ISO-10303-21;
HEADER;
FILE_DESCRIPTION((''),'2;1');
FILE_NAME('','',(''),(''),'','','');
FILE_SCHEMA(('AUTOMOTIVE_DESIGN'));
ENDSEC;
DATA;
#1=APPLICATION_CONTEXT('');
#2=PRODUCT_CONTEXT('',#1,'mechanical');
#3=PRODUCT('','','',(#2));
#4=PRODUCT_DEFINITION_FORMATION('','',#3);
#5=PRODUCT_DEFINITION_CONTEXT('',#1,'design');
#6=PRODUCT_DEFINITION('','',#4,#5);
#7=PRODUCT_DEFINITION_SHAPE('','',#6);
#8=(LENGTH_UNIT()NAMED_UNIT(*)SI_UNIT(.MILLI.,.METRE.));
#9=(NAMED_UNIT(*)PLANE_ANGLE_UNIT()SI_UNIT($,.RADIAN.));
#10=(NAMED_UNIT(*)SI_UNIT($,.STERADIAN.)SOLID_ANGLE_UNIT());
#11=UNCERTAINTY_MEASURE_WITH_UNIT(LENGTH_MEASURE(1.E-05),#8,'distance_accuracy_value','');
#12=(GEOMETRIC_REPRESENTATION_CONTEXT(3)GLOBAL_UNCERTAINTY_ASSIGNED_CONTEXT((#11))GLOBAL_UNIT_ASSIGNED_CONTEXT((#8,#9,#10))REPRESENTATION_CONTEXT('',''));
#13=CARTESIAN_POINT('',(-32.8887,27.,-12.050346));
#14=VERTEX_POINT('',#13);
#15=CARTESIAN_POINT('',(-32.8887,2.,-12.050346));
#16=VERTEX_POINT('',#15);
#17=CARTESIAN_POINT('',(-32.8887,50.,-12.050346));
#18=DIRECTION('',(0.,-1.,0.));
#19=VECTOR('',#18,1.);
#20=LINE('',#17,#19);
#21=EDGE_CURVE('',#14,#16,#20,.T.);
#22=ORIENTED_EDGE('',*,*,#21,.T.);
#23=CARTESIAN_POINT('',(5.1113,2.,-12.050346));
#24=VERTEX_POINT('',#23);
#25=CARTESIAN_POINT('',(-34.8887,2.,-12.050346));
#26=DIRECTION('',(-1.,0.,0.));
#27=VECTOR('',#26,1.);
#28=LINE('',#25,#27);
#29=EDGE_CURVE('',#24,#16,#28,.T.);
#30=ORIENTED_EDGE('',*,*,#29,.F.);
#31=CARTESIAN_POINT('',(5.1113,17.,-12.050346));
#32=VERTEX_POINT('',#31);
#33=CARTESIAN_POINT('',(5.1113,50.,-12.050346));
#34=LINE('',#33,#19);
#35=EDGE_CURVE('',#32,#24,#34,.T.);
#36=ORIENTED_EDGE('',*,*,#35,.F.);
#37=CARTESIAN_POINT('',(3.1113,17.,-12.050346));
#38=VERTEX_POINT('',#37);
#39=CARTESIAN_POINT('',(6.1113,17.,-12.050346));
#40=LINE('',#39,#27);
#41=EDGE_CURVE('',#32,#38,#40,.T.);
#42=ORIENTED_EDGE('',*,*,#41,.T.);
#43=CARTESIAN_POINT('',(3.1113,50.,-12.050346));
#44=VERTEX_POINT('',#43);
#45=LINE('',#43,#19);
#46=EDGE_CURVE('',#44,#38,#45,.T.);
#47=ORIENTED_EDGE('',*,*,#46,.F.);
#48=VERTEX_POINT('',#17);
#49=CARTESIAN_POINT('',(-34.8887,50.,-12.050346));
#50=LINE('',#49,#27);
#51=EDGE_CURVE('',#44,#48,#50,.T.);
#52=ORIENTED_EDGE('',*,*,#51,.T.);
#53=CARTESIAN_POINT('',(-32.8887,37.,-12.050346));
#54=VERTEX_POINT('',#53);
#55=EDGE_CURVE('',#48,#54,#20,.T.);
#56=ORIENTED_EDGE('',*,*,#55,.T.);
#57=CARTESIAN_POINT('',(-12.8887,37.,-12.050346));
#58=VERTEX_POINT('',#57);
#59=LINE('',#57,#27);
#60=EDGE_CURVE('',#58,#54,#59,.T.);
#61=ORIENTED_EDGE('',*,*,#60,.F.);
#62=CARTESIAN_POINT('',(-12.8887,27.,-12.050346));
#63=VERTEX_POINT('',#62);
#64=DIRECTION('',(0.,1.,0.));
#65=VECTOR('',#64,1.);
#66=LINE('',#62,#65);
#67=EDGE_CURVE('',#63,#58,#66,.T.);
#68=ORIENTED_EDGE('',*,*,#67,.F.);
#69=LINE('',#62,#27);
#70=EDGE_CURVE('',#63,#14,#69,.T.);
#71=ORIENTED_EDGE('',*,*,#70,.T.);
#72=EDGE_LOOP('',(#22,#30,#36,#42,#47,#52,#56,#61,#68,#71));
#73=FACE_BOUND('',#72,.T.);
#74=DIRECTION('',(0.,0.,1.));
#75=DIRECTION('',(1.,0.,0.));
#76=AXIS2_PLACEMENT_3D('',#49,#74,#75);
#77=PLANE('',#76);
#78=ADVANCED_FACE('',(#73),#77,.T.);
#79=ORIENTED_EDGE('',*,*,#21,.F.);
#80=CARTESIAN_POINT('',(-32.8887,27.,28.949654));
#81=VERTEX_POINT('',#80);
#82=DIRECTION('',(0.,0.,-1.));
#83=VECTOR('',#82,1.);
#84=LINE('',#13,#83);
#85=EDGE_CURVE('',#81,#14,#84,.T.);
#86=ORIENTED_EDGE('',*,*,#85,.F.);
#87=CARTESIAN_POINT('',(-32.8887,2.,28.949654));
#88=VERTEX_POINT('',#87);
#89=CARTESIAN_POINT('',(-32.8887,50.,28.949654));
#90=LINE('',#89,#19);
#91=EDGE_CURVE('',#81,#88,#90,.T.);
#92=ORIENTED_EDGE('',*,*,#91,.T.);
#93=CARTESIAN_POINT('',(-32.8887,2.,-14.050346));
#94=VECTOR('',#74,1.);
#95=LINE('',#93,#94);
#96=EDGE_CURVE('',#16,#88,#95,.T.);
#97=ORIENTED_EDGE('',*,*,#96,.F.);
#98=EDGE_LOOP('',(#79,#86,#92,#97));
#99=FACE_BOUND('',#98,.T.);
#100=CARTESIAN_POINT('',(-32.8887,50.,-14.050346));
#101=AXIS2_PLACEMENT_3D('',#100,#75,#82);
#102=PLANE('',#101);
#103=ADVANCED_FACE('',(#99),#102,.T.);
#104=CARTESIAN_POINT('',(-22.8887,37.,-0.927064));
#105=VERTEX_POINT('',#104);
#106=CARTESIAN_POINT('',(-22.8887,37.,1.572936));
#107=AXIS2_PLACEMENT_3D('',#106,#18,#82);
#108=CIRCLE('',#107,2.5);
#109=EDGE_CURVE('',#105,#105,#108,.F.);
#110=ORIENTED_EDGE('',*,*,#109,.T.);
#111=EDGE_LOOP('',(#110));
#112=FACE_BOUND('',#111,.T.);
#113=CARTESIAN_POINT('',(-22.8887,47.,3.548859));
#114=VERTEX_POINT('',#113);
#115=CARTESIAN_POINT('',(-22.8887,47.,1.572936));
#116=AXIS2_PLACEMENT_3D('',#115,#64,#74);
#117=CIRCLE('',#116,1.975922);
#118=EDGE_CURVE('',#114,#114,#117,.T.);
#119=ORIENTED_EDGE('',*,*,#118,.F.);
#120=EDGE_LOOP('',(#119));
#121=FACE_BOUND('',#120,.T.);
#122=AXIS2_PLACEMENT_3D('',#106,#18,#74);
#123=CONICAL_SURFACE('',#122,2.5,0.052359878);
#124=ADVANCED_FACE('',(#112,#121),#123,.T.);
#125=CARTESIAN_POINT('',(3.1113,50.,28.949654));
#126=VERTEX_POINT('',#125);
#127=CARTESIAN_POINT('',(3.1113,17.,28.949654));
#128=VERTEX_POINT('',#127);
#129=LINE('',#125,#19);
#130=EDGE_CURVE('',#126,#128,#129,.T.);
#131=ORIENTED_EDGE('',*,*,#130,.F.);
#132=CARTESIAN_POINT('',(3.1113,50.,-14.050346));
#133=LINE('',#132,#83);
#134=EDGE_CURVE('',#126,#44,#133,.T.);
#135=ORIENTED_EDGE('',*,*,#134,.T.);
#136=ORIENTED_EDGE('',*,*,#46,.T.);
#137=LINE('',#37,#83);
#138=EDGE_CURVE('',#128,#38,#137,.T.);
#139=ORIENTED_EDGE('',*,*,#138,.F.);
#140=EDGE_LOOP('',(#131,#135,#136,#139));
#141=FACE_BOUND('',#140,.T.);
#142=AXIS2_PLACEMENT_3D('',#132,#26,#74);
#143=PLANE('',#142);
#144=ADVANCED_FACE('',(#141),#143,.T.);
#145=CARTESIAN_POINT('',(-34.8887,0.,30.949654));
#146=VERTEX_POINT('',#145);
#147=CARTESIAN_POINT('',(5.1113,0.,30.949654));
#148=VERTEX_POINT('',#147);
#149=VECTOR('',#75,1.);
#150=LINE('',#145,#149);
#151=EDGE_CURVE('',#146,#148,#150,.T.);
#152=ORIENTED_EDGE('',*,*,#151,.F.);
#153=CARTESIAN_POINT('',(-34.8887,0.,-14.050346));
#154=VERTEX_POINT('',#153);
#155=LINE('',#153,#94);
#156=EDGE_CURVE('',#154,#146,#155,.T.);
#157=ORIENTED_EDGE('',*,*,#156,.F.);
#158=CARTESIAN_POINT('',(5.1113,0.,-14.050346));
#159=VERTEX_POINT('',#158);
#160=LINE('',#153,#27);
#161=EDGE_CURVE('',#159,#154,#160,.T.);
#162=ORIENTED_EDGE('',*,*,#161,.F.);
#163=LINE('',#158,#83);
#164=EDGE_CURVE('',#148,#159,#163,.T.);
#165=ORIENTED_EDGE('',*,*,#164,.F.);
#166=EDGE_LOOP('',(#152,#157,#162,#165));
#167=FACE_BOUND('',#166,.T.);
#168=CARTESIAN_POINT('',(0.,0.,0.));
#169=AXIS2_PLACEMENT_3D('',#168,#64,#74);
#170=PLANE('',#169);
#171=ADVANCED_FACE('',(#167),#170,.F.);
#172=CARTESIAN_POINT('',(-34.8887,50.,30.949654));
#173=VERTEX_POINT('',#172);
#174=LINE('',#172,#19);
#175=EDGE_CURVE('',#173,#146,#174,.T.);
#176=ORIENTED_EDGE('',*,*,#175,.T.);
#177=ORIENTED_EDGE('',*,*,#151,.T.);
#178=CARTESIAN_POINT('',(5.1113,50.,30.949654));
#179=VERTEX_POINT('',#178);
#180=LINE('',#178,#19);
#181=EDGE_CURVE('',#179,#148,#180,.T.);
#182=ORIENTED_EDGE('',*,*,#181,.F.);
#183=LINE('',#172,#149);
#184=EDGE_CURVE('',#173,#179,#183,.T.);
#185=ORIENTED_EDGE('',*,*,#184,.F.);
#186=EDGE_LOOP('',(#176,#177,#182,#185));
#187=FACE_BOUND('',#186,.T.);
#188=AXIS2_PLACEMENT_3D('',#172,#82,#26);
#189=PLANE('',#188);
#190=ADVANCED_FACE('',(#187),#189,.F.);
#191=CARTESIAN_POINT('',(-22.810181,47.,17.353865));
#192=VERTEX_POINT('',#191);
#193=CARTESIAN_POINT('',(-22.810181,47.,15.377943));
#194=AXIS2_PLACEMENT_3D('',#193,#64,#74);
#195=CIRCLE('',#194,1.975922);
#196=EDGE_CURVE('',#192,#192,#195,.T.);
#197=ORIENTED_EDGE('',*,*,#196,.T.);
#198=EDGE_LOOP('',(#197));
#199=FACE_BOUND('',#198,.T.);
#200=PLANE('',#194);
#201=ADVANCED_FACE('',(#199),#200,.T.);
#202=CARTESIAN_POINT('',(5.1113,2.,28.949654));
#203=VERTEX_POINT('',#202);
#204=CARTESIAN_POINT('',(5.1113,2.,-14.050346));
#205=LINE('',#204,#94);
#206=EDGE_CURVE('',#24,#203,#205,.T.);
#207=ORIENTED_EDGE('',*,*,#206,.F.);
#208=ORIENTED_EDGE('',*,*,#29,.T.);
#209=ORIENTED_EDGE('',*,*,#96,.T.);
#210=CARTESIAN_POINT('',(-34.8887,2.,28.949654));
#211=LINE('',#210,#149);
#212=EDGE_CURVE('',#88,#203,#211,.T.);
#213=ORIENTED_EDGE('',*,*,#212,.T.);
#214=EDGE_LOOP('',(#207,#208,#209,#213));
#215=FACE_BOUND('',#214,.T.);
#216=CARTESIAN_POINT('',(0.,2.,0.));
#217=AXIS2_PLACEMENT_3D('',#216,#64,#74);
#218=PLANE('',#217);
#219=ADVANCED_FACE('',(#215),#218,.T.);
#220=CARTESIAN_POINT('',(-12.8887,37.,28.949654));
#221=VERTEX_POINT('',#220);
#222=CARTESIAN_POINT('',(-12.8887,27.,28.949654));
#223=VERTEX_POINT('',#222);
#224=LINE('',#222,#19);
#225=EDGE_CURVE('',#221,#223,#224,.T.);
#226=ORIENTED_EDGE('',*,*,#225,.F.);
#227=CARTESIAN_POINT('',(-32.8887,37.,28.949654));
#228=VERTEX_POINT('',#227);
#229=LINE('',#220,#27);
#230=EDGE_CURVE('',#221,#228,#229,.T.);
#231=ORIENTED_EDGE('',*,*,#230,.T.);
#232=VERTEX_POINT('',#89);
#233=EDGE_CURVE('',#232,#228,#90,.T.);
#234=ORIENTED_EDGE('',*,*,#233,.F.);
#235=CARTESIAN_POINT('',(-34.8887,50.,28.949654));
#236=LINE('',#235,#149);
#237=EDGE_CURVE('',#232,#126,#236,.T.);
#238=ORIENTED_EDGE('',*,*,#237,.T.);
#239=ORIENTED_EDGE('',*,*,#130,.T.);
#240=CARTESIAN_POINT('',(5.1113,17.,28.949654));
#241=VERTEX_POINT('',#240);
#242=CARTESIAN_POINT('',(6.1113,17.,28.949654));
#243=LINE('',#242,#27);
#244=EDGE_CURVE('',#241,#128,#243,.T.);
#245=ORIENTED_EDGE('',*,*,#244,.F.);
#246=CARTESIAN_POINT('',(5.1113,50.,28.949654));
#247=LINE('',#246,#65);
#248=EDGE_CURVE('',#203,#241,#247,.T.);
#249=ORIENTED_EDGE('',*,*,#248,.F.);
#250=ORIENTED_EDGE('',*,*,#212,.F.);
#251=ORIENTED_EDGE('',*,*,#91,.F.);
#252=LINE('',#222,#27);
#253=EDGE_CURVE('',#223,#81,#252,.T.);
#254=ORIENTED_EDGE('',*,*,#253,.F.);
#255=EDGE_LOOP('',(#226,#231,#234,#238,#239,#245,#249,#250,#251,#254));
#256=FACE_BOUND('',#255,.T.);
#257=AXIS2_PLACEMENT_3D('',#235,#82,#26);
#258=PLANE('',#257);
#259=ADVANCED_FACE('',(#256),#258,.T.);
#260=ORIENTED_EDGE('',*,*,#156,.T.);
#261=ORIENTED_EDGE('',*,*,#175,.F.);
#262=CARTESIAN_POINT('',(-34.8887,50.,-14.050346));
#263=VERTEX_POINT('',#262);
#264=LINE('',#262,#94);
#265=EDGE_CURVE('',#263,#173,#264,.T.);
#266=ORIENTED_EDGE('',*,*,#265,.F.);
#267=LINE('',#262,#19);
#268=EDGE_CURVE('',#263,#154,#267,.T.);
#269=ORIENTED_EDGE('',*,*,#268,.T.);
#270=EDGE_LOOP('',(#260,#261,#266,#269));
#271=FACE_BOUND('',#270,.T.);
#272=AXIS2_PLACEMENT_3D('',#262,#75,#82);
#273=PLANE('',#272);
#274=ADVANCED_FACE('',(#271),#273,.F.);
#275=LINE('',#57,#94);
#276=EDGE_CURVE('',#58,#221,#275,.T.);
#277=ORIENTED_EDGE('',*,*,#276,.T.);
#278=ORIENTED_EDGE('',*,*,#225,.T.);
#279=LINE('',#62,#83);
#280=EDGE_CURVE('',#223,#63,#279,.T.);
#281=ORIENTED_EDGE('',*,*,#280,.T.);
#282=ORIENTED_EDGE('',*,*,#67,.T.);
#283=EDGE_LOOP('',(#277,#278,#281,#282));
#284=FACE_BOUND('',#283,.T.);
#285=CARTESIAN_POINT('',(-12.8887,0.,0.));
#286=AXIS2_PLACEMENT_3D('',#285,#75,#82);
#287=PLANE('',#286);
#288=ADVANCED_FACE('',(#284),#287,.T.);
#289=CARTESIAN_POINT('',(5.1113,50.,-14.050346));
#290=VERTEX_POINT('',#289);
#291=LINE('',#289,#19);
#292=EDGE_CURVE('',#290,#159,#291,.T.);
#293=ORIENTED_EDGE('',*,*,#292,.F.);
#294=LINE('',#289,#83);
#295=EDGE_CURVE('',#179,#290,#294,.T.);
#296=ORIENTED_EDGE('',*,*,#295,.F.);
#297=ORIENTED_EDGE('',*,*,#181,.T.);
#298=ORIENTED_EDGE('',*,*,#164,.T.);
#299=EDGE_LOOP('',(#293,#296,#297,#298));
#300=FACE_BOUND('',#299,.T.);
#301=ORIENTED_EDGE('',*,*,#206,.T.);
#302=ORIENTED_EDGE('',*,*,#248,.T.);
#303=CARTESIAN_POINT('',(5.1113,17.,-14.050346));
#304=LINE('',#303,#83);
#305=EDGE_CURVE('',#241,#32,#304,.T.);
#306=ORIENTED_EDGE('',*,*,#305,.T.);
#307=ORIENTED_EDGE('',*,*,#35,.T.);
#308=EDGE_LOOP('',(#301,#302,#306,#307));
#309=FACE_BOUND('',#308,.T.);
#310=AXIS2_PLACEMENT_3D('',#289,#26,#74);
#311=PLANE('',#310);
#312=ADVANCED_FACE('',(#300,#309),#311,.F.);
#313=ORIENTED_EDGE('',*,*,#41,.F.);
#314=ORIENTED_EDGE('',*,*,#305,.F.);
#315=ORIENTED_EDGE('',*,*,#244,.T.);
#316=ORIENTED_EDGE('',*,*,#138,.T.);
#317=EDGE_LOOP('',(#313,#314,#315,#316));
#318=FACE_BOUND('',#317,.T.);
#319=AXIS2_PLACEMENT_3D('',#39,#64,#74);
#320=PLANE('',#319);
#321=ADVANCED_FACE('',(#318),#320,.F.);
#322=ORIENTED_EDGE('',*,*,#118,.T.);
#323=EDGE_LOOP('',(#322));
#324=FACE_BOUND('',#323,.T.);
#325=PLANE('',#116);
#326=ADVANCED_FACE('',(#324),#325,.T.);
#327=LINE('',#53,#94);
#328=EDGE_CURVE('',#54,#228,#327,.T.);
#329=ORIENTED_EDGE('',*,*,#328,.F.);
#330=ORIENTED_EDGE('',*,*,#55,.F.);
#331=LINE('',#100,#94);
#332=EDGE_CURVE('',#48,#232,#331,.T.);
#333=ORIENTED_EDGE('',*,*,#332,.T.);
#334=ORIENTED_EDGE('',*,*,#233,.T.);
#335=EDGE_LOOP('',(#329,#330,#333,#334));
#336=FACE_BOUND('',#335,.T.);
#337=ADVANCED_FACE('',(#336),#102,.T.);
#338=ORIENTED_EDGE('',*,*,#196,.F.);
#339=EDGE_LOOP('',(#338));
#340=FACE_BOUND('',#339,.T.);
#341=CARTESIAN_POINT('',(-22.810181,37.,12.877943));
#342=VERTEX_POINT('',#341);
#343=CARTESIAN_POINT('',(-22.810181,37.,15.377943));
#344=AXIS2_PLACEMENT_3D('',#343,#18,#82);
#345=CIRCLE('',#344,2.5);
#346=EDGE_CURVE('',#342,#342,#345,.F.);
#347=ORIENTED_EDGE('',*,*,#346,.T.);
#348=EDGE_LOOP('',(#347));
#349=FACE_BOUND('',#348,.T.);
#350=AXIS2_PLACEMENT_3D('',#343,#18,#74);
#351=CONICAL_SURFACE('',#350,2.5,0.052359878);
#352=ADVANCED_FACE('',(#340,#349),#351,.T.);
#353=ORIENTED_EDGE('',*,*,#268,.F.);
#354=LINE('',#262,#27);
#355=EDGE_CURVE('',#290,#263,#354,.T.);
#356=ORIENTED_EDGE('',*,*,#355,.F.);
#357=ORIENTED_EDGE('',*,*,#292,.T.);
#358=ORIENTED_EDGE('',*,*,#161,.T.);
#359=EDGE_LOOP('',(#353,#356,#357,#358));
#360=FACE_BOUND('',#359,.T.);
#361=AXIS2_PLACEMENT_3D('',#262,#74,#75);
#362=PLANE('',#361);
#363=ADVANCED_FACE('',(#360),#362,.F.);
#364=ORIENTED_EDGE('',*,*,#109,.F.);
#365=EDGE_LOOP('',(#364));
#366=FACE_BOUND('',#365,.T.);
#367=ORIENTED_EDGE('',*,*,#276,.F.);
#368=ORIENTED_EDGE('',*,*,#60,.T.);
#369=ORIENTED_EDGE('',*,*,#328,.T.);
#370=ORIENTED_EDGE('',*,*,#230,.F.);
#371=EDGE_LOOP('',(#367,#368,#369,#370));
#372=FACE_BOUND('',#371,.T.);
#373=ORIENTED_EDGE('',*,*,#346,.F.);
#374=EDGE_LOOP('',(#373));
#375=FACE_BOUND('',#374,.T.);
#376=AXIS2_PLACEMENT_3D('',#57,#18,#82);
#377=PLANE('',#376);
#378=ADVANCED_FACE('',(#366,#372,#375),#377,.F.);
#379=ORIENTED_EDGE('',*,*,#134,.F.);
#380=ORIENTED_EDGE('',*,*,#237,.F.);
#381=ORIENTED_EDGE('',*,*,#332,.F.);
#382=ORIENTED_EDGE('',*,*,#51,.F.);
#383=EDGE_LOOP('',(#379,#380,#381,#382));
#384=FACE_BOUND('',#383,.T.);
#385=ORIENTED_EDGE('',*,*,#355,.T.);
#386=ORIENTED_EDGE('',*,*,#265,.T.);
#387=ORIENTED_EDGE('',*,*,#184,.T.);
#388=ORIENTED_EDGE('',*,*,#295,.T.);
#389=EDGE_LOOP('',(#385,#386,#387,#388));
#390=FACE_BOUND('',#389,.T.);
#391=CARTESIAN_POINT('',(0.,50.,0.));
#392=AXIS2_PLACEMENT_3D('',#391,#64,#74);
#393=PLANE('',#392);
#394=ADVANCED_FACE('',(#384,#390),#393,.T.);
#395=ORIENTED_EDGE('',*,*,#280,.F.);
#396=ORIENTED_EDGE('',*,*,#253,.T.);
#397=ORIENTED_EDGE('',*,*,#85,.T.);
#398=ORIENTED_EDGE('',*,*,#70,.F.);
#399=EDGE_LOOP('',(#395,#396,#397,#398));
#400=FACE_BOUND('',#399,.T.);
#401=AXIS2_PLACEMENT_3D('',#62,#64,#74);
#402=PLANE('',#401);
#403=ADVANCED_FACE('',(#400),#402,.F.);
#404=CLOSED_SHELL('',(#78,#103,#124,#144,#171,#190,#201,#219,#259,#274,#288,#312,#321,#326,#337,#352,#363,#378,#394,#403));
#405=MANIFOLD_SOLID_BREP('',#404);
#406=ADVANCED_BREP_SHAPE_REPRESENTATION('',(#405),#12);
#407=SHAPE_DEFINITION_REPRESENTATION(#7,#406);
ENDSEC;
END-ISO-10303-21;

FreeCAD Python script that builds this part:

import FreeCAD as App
import Part
import Sketcher
from FreeCAD import Vector
Q = App.Units.Quantity


def faces_at(feature, points):
    """Names of the faces that lie closest to the given points."""
    faces = feature.Shape.Faces
    near = lambda p: min(range(len(faces)), key=lambda i: faces[i].distToShape(Part.Vertex(*p))[0])
    return sorted({f"Face{near(p) + 1}" for p in points})

doc = App.newDocument("Part")
body = doc.addObject("PartDesign::Body", "Body")

sketch1 = doc.addObject("Sketcher::SketchObject", "Sketch")
body.addObject(sketch1)
sketch1.AttachmentSupport = (doc.XZ_Plane, [""])
sketch1.MapMode = "FlatFace"
sketch1.addGeometry(Part.LineSegment(Vector(-35, -14, 0), Vector(-35, 31, 0)), False)
sketch1.addGeometry(Part.LineSegment(Vector(-35, 31, 0), Vector(5, 31, 0)), False)
sketch1.addGeometry(Part.LineSegment(Vector(5, 31, 0), Vector(5, -14, 0)), False)
sketch1.addGeometry(Part.LineSegment(Vector(5, -14, 0), Vector(-35, -14, 0)), False)
sketch1.addConstraint(Sketcher.Constraint("Coincident", 0, 2, 1, 1))
sketch1.addConstraint(Sketcher.Constraint("Coincident", 1, 2, 2, 1))
sketch1.addConstraint(Sketcher.Constraint("Coincident", 2, 2, 3, 1))
sketch1.addConstraint(Sketcher.Constraint("Coincident", 3, 2, 0, 1))
sketch1.addConstraint(Sketcher.Constraint("Vertical", 0))
sketch1.addConstraint(Sketcher.Constraint("Horizontal", 1))
sketch1.addConstraint(Sketcher.Constraint("Vertical", 2))
sketch1.addConstraint(Sketcher.Constraint("Horizontal", 3))
sketch1.addConstraint(Sketcher.Constraint("DistanceX", 1, 1, 1, 2, Q("40 mm")))
sketch1.addConstraint(Sketcher.Constraint("DistanceY", 0, 1, 0, 2, Q("45 mm")))
sketch1.addConstraint(Sketcher.Constraint("DistanceX", 0, 2, -1, 1, Q("34.8887 mm")))
sketch1.addConstraint(Sketcher.Constraint("DistanceY", -1, 1, 0, 2, Q("30.949654 mm")))
pad1 = doc.addObject("PartDesign::Pad", "Pad")
body.addObject(pad1)
pad1.Profile = sketch1
pad1.Length = 50
pad1.Reversed = True
doc.recompute()

thickness = doc.addObject("PartDesign::Thickness", "Thickness")
body.addObject(thickness)
thickness.Base = (pad1, faces_at(pad1, [(-14.889, 50, 8.45)]))
thickness.Value = 2
thickness.Reversed = True
thickness.Join = "Intersection"

sketch2 = doc.addObject("Sketcher::SketchObject", "Sketch001")
body.addObject(sketch2)
sketch2.AttachmentSupport = (doc.YZ_Plane, [""])
sketch2.MapMode = "FlatFace"
sketch2.AttachmentOffset = App.Placement(Vector(0, 0, 3.1113), App.Rotation())
sketch2.addGeometry(Part.LineSegment(Vector(17, -12, 0), Vector(2, -12, 0)), False)
sketch2.addGeometry(Part.LineSegment(Vector(2, -12, 0), Vector(2, 29, 0)), False)
sketch2.addGeometry(Part.LineSegment(Vector(2, 29, 0), Vector(17, 29, 0)), False)
sketch2.addGeometry(Part.LineSegment(Vector(17, 29, 0), Vector(17, -12, 0)), False)
sketch2.addConstraint(Sketcher.Constraint("Coincident", 0, 2, 1, 1))
sketch2.addConstraint(Sketcher.Constraint("Coincident", 1, 2, 2, 1))
sketch2.addConstraint(Sketcher.Constraint("Coincident", 2, 2, 3, 1))
sketch2.addConstraint(Sketcher.Constraint("Coincident", 3, 2, 0, 1))
sketch2.addConstraint(Sketcher.Constraint("Horizontal", 0))
sketch2.addConstraint(Sketcher.Constraint("Vertical", 1))
sketch2.addConstraint(Sketcher.Constraint("Horizontal", 2))
sketch2.addConstraint(Sketcher.Constraint("Vertical", 3))
sketch2.addConstraint(Sketcher.Constraint("DistanceX", 0, 2, 0, 1, Q("15 mm")))
sketch2.addConstraint(Sketcher.Constraint("DistanceY", 1, 1, 1, 2, Q("41 mm")))
sketch2.addConstraint(Sketcher.Constraint("DistanceX", -1, 1, 0, 2, Q("2 mm")))
sketch2.addConstraint(Sketcher.Constraint("DistanceY", 0, 2, -1, 1, Q("12.050346 mm")))
pocket1 = doc.addObject("PartDesign::Pocket", "Pocket")
body.addObject(pocket1)
pocket1.Profile = sketch2
pocket1.Length = 3
pocket1.Reversed = True

sketch3 = doc.addObject("Sketcher::SketchObject", "Sketch002")
body.addObject(sketch3)
sketch3.AttachmentSupport = (doc.YZ_Plane, [""])
sketch3.MapMode = "FlatFace"
sketch3.AttachmentOffset = App.Placement(Vector(0, 0, -32.8887), App.Rotation())
sketch3.addGeometry(Part.LineSegment(Vector(37, 29, 0), Vector(27, 29, 0)), False)
sketch3.addGeometry(Part.LineSegment(Vector(27, 29, 0), Vector(27, -12, 0)), False)
sketch3.addGeometry(Part.LineSegment(Vector(27, -12, 0), Vector(37, -12, 0)), False)
sketch3.addGeometry(Part.LineSegment(Vector(37, -12, 0), Vector(37, 29, 0)), False)
sketch3.addConstraint(Sketcher.Constraint("Coincident", 0, 2, 1, 1))
sketch3.addConstraint(Sketcher.Constraint("Coincident", 1, 2, 2, 1))
sketch3.addConstraint(Sketcher.Constraint("Coincident", 2, 2, 3, 1))
sketch3.addConstraint(Sketcher.Constraint("Coincident", 3, 2, 0, 1))
sketch3.addConstraint(Sketcher.Constraint("Horizontal", 0))
sketch3.addConstraint(Sketcher.Constraint("Vertical", 1))
sketch3.addConstraint(Sketcher.Constraint("Horizontal", 2))
sketch3.addConstraint(Sketcher.Constraint("Vertical", 3))
sketch3.addConstraint(Sketcher.Constraint("DistanceX", 0, 2, 0, 1, Q("10 mm")))
sketch3.addConstraint(Sketcher.Constraint("DistanceY", 1, 2, 1, 1, Q("41 mm")))
sketch3.addConstraint(Sketcher.Constraint("DistanceX", -1, 1, 0, 2, Q("27 mm")))
sketch3.addConstraint(Sketcher.Constraint("DistanceY", -1, 1, 0, 2, Q("28.949654 mm")))
pad2 = doc.addObject("PartDesign::Pad", "Pad001")
body.addObject(pad2)
pad2.Profile = sketch3
pad2.Length = 20

sketch4 = doc.addObject("Sketcher::SketchObject", "Sketch003")
body.addObject(sketch4)
sketch4.AttachmentSupport = (doc.XZ_Plane, [""])
sketch4.MapMode = "FlatFace"
sketch4.AttachmentOffset = App.Placement(Vector(0, 0, -37), App.Rotation())
sketch4.addGeometry(Part.Circle(Vector(-22.9, 1.6, 0), Vector(0, 0, 1), 2.5), False)
sketch4.addConstraint(Sketcher.Constraint("Diameter", 0, Q("5 mm")))
sketch4.addConstraint(Sketcher.Constraint("DistanceX", 0, 3, -1, 1, Q("22.8887 mm")))
sketch4.addConstraint(Sketcher.Constraint("DistanceY", -1, 1, 0, 3, Q("1.572936 mm")))
pad3 = doc.addObject("PartDesign::Pad", "Pad002")
body.addObject(pad3)
pad3.Profile = sketch4
pad3.Length = 10
pad3.Reversed = True
pad3.TaperAngle = -3

sketch5 = doc.addObject("Sketcher::SketchObject", "Sketch004")
body.addObject(sketch5)
sketch5.AttachmentSupport = (doc.XZ_Plane, [""])
sketch5.MapMode = "FlatFace"
sketch5.AttachmentOffset = App.Placement(Vector(0, 0, -37), App.Rotation())
sketch5.addGeometry(Part.Circle(Vector(-22.8, 15.4, 0), Vector(0, 0, 1), 2.5), False)
sketch5.addConstraint(Sketcher.Constraint("Diameter", 0, Q("5 mm")))
sketch5.addConstraint(Sketcher.Constraint("DistanceX", 0, 3, -1, 1, Q("22.810181 mm")))
sketch5.addConstraint(Sketcher.Constraint("DistanceY", -1, 1, 0, 3, Q("15.377943 mm")))
pad4 = doc.addObject("PartDesign::Pad", "Pad003")
body.addObject(pad4)
pad4.Profile = sketch5
pad4.Length = 10
pad4.Reversed = True
pad4.TaperAngle = -3

doc.recompute()
